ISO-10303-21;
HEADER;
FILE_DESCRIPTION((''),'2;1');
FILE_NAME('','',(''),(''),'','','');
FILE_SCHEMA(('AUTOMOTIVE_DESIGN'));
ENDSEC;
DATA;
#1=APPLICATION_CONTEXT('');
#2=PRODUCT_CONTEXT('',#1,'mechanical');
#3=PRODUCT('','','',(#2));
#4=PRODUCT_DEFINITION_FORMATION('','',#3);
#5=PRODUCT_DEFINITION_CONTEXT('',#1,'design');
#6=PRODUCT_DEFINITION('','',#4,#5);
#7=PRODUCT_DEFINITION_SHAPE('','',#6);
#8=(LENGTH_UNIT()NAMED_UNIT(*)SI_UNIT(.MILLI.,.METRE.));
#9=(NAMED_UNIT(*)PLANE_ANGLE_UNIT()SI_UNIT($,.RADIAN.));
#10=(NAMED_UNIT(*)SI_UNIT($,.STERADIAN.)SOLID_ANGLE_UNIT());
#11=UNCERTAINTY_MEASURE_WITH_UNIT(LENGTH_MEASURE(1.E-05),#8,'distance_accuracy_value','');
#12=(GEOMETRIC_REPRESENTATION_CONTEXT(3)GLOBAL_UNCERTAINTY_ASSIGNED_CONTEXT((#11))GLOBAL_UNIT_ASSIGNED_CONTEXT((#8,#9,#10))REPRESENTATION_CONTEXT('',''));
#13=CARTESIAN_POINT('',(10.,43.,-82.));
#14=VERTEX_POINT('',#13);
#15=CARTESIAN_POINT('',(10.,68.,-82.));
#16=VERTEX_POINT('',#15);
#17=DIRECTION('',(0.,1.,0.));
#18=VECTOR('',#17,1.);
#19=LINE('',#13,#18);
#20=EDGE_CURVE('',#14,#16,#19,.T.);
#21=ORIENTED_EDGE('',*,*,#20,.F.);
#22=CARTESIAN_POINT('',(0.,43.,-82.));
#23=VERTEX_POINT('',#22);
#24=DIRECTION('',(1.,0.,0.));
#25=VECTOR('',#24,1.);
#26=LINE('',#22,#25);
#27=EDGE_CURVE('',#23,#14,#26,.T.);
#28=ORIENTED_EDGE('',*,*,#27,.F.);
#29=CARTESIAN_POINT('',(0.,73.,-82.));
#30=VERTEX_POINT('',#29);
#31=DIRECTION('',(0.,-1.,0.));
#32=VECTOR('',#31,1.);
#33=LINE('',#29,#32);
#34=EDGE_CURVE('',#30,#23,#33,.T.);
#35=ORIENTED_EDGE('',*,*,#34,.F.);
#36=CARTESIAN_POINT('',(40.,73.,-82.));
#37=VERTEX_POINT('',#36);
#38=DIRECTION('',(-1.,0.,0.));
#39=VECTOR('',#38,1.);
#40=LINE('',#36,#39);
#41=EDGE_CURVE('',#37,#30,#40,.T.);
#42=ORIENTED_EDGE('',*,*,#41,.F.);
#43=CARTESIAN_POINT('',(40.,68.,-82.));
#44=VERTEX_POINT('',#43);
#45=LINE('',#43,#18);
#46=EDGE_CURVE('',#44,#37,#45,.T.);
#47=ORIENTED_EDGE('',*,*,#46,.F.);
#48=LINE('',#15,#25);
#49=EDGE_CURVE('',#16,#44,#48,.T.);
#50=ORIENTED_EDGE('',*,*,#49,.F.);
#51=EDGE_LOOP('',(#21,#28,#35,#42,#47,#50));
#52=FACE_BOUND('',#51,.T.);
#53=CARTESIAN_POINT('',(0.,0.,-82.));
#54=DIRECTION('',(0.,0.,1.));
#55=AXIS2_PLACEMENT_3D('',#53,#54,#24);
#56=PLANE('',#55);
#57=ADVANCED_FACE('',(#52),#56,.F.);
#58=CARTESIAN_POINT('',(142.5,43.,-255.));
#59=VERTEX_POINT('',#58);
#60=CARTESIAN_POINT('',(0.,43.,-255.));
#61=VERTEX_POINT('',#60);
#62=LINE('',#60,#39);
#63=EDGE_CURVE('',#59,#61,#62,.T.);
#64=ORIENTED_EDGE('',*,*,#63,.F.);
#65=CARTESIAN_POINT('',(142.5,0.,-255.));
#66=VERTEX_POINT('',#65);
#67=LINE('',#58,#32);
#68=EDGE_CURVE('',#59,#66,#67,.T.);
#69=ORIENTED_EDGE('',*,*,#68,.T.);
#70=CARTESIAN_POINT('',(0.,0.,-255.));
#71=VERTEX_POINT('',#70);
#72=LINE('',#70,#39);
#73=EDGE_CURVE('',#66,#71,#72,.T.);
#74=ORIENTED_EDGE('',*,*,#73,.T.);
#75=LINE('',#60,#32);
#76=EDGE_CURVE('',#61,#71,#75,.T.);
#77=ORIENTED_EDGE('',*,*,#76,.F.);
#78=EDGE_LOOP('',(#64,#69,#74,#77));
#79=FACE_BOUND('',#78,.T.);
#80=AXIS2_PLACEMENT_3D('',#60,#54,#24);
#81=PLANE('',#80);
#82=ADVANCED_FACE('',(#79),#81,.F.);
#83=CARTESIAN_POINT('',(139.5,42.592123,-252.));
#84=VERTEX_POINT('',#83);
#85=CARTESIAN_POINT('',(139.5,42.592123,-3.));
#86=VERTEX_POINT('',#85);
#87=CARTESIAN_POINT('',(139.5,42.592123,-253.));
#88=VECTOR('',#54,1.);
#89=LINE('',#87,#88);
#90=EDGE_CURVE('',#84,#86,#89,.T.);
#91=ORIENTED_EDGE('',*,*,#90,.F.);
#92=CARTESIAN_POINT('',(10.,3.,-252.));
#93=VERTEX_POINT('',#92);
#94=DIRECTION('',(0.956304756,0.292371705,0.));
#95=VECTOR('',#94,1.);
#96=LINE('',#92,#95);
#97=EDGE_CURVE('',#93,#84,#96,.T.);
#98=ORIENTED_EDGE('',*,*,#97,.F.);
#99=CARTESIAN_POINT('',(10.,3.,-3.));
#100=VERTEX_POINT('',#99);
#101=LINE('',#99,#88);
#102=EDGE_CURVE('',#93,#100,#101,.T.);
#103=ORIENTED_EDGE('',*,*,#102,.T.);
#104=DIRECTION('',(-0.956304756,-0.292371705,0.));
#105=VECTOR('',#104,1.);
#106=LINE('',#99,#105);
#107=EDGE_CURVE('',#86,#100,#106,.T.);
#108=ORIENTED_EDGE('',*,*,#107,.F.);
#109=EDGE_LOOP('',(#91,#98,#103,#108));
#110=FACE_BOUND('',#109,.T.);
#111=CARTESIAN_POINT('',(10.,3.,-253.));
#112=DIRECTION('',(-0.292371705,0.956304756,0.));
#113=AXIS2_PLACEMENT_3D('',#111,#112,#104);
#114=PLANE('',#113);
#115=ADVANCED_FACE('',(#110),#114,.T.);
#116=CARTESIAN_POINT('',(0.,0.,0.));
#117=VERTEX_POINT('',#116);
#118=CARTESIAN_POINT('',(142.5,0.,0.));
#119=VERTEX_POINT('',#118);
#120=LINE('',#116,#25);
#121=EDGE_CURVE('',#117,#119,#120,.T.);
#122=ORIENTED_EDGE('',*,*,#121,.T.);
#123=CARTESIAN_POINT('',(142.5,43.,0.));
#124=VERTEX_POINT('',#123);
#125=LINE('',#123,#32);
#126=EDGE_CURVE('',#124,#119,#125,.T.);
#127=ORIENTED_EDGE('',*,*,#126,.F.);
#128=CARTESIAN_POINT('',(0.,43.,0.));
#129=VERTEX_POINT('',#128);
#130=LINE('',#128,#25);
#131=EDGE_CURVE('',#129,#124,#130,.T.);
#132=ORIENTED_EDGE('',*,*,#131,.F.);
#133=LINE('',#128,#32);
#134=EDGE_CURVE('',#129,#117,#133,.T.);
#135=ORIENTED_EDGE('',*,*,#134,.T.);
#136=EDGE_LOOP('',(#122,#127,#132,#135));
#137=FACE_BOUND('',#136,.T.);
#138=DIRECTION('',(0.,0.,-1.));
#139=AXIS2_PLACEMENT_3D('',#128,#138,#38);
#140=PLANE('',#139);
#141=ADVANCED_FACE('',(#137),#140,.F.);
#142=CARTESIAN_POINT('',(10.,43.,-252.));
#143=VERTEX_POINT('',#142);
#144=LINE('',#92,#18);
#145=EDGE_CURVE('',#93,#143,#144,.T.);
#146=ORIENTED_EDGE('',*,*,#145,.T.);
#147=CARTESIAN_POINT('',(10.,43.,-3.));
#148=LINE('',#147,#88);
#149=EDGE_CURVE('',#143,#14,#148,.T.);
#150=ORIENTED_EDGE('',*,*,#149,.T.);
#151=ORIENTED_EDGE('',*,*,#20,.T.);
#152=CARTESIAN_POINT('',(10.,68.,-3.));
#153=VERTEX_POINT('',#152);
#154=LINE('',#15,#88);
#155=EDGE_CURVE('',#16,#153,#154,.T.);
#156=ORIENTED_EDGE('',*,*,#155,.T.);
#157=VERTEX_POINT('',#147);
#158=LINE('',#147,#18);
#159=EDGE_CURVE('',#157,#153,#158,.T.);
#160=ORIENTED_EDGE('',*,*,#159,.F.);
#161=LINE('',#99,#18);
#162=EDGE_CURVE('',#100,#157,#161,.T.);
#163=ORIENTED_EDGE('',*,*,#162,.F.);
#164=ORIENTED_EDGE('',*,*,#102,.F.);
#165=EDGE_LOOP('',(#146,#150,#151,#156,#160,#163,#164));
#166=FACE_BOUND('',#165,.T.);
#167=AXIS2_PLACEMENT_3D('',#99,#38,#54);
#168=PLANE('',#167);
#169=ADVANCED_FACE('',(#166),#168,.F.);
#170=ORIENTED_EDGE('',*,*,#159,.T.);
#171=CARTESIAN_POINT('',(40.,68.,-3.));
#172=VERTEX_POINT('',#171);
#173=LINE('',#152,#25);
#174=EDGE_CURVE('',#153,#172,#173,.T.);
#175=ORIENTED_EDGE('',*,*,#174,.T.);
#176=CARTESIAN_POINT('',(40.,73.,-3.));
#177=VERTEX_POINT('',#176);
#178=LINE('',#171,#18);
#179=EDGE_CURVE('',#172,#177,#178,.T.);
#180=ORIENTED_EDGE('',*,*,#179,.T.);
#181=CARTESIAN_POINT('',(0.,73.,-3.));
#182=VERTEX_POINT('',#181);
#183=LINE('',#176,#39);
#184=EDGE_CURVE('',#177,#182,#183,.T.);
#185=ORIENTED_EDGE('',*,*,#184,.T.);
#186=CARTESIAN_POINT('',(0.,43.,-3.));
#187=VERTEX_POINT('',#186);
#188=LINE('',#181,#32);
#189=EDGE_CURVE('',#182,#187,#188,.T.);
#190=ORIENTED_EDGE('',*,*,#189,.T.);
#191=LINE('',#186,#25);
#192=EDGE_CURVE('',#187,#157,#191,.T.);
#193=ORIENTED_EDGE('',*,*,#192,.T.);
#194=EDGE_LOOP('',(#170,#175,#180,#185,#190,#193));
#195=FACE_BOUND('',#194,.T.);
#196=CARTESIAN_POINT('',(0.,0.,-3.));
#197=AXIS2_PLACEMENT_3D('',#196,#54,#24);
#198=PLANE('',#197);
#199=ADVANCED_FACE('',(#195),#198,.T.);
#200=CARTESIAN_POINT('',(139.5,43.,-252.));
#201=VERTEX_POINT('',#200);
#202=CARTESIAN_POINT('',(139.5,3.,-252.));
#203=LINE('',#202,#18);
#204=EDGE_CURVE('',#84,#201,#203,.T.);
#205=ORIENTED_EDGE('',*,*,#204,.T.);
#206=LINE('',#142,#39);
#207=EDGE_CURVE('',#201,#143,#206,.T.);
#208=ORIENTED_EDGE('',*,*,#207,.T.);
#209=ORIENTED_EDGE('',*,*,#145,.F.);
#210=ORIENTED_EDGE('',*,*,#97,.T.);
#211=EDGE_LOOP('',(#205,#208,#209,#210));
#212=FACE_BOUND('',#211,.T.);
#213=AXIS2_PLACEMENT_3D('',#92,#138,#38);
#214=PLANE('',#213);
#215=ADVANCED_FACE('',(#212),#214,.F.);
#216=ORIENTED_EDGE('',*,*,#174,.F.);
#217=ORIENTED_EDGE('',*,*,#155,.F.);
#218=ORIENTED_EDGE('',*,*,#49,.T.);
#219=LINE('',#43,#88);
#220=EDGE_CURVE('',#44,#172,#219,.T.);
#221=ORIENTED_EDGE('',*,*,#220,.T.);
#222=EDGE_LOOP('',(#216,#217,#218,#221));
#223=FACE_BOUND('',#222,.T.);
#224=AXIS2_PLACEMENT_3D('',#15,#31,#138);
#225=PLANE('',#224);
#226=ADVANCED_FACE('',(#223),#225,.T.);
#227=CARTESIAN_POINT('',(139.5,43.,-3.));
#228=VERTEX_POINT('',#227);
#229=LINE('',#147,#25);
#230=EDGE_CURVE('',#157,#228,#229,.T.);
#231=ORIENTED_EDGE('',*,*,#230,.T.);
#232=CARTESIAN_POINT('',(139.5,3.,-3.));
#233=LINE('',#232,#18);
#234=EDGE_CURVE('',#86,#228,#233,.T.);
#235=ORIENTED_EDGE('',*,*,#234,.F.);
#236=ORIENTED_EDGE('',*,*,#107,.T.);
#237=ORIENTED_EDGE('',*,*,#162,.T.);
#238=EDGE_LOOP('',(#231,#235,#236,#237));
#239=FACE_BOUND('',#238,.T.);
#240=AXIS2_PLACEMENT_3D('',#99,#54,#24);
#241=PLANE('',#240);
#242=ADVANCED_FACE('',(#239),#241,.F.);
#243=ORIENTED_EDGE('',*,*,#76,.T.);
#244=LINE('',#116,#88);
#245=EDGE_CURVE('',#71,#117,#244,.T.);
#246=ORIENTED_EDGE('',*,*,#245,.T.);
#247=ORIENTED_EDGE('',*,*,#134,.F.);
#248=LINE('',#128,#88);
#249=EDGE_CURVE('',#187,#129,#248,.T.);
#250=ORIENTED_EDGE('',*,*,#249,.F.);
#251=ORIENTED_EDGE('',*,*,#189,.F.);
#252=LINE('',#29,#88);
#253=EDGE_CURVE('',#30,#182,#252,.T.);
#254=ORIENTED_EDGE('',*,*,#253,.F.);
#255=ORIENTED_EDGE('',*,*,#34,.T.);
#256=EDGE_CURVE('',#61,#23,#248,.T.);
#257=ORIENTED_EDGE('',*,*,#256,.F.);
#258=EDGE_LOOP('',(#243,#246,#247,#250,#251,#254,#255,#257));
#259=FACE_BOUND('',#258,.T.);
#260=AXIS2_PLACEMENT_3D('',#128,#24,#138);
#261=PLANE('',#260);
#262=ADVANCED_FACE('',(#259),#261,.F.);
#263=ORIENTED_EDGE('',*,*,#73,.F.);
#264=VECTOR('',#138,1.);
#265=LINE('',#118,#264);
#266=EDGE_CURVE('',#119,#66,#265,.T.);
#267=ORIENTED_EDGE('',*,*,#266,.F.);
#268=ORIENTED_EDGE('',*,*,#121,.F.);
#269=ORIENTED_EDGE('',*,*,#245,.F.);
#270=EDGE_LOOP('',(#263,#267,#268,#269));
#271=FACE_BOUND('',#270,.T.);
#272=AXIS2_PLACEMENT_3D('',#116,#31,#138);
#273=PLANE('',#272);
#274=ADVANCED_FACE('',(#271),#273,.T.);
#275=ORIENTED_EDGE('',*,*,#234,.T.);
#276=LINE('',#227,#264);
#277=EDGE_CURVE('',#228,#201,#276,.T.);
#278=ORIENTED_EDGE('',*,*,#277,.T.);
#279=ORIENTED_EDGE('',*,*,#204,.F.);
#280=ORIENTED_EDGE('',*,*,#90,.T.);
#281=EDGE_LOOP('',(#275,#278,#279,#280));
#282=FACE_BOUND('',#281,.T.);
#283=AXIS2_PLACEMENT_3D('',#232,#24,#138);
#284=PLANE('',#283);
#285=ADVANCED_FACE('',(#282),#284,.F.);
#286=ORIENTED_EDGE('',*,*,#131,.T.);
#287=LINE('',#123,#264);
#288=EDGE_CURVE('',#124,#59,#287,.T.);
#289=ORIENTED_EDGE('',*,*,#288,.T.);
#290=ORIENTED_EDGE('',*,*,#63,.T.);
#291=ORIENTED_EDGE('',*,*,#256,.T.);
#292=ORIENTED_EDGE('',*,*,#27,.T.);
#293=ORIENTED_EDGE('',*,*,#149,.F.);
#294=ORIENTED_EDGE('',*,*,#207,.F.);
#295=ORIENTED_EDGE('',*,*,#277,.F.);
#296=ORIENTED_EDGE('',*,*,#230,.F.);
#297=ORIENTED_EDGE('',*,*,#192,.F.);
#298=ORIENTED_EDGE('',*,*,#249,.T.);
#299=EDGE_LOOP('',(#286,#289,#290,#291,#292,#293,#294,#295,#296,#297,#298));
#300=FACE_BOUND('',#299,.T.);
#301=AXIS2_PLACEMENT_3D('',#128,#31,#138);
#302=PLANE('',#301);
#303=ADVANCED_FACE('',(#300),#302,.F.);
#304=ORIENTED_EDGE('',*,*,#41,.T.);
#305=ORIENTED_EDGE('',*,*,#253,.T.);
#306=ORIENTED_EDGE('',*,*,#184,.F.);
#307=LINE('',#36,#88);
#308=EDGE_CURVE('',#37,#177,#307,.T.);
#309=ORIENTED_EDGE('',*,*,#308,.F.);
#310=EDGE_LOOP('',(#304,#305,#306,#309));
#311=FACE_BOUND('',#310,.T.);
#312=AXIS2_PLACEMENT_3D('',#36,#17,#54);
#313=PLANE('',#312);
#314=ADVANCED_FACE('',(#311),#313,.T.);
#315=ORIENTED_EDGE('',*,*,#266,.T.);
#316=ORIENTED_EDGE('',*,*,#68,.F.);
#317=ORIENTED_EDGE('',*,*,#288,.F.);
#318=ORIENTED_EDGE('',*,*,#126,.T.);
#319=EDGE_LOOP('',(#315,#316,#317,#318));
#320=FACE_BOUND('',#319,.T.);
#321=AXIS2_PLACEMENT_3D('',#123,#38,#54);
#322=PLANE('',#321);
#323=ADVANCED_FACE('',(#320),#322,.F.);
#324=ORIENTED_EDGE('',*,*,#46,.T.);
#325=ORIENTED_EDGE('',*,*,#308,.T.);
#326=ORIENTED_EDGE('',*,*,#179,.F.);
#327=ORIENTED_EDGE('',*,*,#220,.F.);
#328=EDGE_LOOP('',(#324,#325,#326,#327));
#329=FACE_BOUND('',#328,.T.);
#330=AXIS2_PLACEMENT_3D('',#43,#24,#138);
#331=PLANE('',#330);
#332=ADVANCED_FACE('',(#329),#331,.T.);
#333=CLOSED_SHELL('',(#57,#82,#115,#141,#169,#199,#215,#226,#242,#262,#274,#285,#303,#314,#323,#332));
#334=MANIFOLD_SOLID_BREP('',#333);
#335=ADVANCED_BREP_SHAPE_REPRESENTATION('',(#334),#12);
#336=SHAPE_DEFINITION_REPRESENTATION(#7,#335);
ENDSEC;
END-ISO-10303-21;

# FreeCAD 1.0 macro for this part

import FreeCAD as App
import Part
import Sketcher
Q = App.Units.Quantity

doc = App.newDocument("Part")
body = doc.addObject("PartDesign::Body", "Body")

sketch1 = body.newObject("Sketcher::SketchObject", "Sketch")
sketch1.AttachmentSupport = (doc.getObject("XZ_Plane"), [""])
sketch1.MapMode = "FlatFace"
sketch1.addGeometry([
    Part.LineSegment(App.Vector(0, -255, 0), App.Vector(0, 0, 0)),
    Part.LineSegment(App.Vector(0, 0, 0), App.Vector(142.5, 0, 0)),
    Part.LineSegment(App.Vector(142.5, 0, 0), App.Vector(142.5, -255, 0)),
    Part.LineSegment(App.Vector(142.5, -255, 0), App.Vector(0, -255, 0)),
], False)
sketch1.addConstraint([
    Sketcher.Constraint("Coincident", 0, 2, 1, 1),
    Sketcher.Constraint("Coincident", 1, 2, 2, 1),
    Sketcher.Constraint("Coincident", 2, 2, 3, 1),
    Sketcher.Constraint("Coincident", 3, 2, 0, 1),
    Sketcher.Constraint("Vertical", 0),
    Sketcher.Constraint("Horizontal", 1),
    Sketcher.Constraint("Vertical", 2),
    Sketcher.Constraint("Horizontal", 3),
    Sketcher.Constraint("Coincident", 0, 2, -1, 1),
    Sketcher.Constraint("DistanceY", 0, 1, 0, 2, Q("255 mm")),
    Sketcher.Constraint("DistanceX", 1, 1, 1, 2, Q("142.5 mm")),
])
pad1 = body.newObject("PartDesign::Pad", "Pad")
pad1.Profile = sketch1
pad1.Length = 43
pad1.Reversed = True

sketch2 = body.newObject("Sketcher::SketchObject", "Sketch001")
sketch2.AttachmentSupport = (doc.getObject("XZ_Plane"), [""])
sketch2.MapMode = "FlatFace"
sketch2.AttachmentOffset = App.Placement(App.Vector(0, 0, -43), App.Rotation())
sketch2.addGeometry([
    Part.LineSegment(App.Vector(10, -252, 0), App.Vector(10, -3, 0)),
    Part.LineSegment(App.Vector(10, -3, 0), App.Vector(139.5, -3, 0)),
    Part.LineSegment(App.Vector(139.5, -3, 0), App.Vector(139.5, -252, 0)),
    Part.LineSegment(App.Vector(139.5, -252, 0), App.Vector(10, -252, 0)),
], False)
sketch2.addConstraint([
    Sketcher.Constraint("Coincident", 0, 2, 1, 1),
    Sketcher.Constraint("Coincident", 1, 2, 2, 1),
    Sketcher.Constraint("Coincident", 2, 2, 3, 1),
    Sketcher.Constraint("Coincident", 3, 2, 0, 1),
    Sketcher.Constraint("Vertical", 0),
    Sketcher.Constraint("Horizontal", 1),
    Sketcher.Constraint("Vertical", 2),
    Sketcher.Constraint("Horizontal", 3),
    Sketcher.Constraint("DistanceY", 0, 1, 0, 2, Q("249 mm")),
    Sketcher.Constraint("DistanceX", 1, 1, 1, 2, Q("129.5 mm")),
    Sketcher.Constraint("DistanceX", -1, 1, 0, 2, Q("10 mm")),
    Sketcher.Constraint("DistanceY", 0, 2, -1, 1, Q("3 mm")),
])
pocket1 = body.newObject("PartDesign::Pocket", "Pocket")
pocket1.Profile = sketch2
pocket1.Length = 40
pocket1.Reversed = True

sketch3 = body.newObject("Sketcher::SketchObject", "Sketch002")
sketch3.AttachmentSupport = (doc.getObject("XY_Plane"), [""])
sketch3.MapMode = "FlatFace"
sketch3.AttachmentOffset = App.Placement(App.Vector(0, 0, -3), App.Rotation())
sketch3.addGeometry([
    Part.LineSegment(App.Vector(10, 43, 0), App.Vector(10, 68, 0)),
    Part.LineSegment(App.Vector(10, 68, 0), App.Vector(40, 68, 0)),
    Part.LineSegment(App.Vector(40, 68, 0), App.Vector(40, 73, 0)),
    Part.LineSegment(App.Vector(40, 73, 0), App.Vector(0, 73, 0)),
    Part.LineSegment(App.Vector(0, 73, 0), App.Vector(0, 43, 0)),
    Part.LineSegment(App.Vector(0, 43, 0), App.Vector(10, 43, 0)),
], False)
sketch3.addConstraint([
    Sketcher.Constraint("Coincident", 0, 2, 1, 1),
    Sketcher.Constraint("Coincident", 1, 2, 2, 1),
    Sketcher.Constraint("Coincident", 2, 2, 3, 1),
    Sketcher.Constraint("Coincident", 3, 2, 4, 1),
    Sketcher.Constraint("Coincident", 4, 2, 5, 1),
    Sketcher.Constraint("Coincident", 5, 2, 0, 1),
    Sketcher.Constraint("Vertical", 0),
    Sketcher.Constraint("Horizontal", 1),
    Sketcher.Constraint("Vertical", 2),
    Sketcher.Constraint("Horizontal", 3),
    Sketcher.Constraint("Vertical", 4),
    Sketcher.Constraint("Horizontal", 5),
    Sketcher.Constraint("PointOnObject", 3, 2, -2),
    Sketcher.Constraint("Equal", 1, 4),
    Sketcher.Constraint("DistanceX", 1, 1, 1, 2, Q("30 mm")),
    Sketcher.Constraint("DistanceX", 3, 2, 3, 1, Q("40 mm")),
    Sketcher.Constraint("DistanceY", 0, 1, 0, 2, Q("25 mm")),
    Sketcher.Constraint("DistanceY", -1, 1, 0, 2, Q("68 mm")),
])
pad2 = body.newObject("PartDesign::Pad", "Pad001")
pad2.Profile = sketch3
pad2.Length = 79
pad2.Reversed = True

sketch4 = body.newObject("Sketcher::SketchObject", "Sketch003")
sketch4.AttachmentSupport = (doc.getObject("XY_Plane"), [""])
sketch4.MapMode = "FlatFace"
sketch4.AttachmentOffset = App.Placement(App.Vector(0, 0, -3), App.Rotation())
sketch4.addGeometry([
    Part.LineSegment(App.Vector(139.5, 42.592123, 0), App.Vector(10, 3, 0)),
    Part.LineSegment(App.Vector(10, 3, 0), App.Vector(139.5, 3, 0)),
    Part.LineSegment(App.Vector(139.5, 3, 0), App.Vector(139.5, 42.592123, 0)),
], False)
sketch4.addConstraint([
    Sketcher.Constraint("Coincident", 0, 2, 1, 1),
    Sketcher.Constraint("Coincident", 1, 2, 2, 1),
    Sketcher.Constraint("Coincident", 2, 2, 0, 1),
    Sketcher.Constraint("Horizontal", 1),
    Sketcher.Constraint("Vertical", 2),
    Sketcher.Constraint("Angle", 0, Q("-163 deg")),
    Sketcher.Constraint("DistanceX", 1, 1, 1, 2, Q("129.5 mm")),
    Sketcher.Constraint("DistanceX", -1, 1, 0, 2, Q("10 mm")),
    Sketcher.Constraint("DistanceY", -1, 1, 0, 2, Q("3 mm")),
])
pad3 = body.newObject("PartDesign::Pad", "Pad002")
pad3.Profile = sketch4
pad3.Length = 250
pad3.Reversed = True

doc.recompute()
